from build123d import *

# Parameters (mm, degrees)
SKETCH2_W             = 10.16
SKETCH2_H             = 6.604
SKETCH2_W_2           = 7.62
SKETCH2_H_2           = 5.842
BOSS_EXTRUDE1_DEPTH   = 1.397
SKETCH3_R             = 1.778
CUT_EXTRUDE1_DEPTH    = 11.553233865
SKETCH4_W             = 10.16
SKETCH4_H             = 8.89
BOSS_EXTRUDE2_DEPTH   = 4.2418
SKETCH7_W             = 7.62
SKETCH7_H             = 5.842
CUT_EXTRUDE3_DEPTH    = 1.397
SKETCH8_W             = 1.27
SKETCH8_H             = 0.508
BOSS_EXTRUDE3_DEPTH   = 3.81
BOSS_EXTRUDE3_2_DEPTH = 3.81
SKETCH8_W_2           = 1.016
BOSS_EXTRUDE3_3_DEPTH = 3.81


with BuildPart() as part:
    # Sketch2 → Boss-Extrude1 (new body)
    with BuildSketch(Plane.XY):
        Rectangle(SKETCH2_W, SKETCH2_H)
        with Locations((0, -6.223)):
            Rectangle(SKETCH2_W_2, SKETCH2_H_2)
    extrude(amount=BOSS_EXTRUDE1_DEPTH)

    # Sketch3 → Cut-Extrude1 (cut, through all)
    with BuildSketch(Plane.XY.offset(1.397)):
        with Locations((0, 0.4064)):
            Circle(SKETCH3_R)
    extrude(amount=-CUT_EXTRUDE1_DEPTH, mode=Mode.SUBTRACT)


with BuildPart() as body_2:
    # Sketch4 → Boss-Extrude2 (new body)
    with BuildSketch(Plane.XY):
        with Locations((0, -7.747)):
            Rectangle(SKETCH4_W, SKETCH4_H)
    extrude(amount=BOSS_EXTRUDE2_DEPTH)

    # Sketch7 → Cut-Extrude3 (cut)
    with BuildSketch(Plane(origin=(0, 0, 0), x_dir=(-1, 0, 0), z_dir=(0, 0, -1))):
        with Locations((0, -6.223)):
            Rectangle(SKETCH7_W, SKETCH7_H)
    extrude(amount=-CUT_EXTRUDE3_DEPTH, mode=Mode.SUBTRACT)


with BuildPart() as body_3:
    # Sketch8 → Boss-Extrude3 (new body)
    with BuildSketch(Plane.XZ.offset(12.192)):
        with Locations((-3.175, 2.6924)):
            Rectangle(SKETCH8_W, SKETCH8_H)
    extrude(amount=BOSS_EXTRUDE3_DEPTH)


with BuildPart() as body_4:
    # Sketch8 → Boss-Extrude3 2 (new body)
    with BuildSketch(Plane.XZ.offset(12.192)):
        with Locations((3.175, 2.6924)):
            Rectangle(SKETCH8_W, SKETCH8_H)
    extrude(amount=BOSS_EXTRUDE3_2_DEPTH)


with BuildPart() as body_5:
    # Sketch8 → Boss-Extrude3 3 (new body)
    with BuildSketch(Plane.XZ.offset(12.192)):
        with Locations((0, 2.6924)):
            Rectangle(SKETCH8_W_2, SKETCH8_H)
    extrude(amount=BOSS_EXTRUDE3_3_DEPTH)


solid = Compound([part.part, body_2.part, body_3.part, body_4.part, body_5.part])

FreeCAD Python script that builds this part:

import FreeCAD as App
import Part
import Sketcher
from FreeCAD import Vector
Q = App.Units.Quantity

doc = App.newDocument("Part")
params = doc.addObject("Spreadsheet::Sheet", "Params")
for row, (alias, value) in enumerate([
    ("sketch1_width", "0.3 in"),
    ("sketch1_width2", "0.4 in"),
    ("sketch1_height", "0.26 in"),
    ("sketch1_height2", "0.23 in"),
    ("pad1_length", "0.055 in"),
    ("sketch2_diameter", "0.14 in"),
    ("sketch3_width", "0.4 in"),
    ("sketch3_height", "0.35 in"),
    ("pad2_length", "0.167 in"),
    ("sketch4_width", "0.3 in"),
    ("sketch4_height", "0.23 in"),
    ("pocket2_length", "0.055 in"),
    ("sketch5_width", "0.05 in"),
    ("sketch5_height", "0.02 in"),
    ("pad3_length", "0.15 in"),
    ("sketch6_width", "0.05 in"),
    ("sketch6_height", "0.02 in"),
    ("pad4_length", "0.15 in"),
    ("sketch7_width", "0.04 in"),
    ("sketch7_height", "0.02 in"),
    ("pad5_length", "0.15 in"),
], start=1):
    params.set(f"A{row}", alias)
    params.set(f"B{row}", "=" + value)
    params.setAlias(f"B{row}", alias)

body = doc.addObject("PartDesign::Body", "Body")

# Sketch on XY plane
sketch1 = doc.addObject("Sketcher::SketchObject", "Sketch")
body.addObject(sketch1)
sketch1.AttachmentSupport = (doc.XY_Plane, [""])
sketch1.MapMode = "FlatFace"
sketch1.addGeometry(Part.LineSegment(Vector(-5.1, 3.3, 0), Vector(-5.1, -3.3, 0)), False)
sketch1.addGeometry(Part.LineSegment(Vector(-5.1, -3.3, 0), Vector(-3.8, -3.3, 0)), False)
sketch1.addGeometry(Part.LineSegment(Vector(-3.8, -3.3, 0), Vector(-3.8, -9.1, 0)), False)
sketch1.addGeometry(Part.LineSegment(Vector(-3.8, -9.1, 0), Vector(3.8, -9.1, 0)), False)
sketch1.addGeometry(Part.LineSegment(Vector(3.8, -9.1, 0), Vector(3.8, -3.3, 0)), False)
sketch1.addGeometry(Part.LineSegment(Vector(3.8, -3.3, 0), Vector(5.1, -3.3, 0)), False)
sketch1.addGeometry(Part.LineSegment(Vector(5.1, -3.3, 0), Vector(5.1, 3.3, 0)), False)
sketch1.addGeometry(Part.LineSegment(Vector(5.1, 3.3, 0), Vector(-5.1, 3.3, 0)), False)
sketch1.addConstraint(Sketcher.Constraint("Coincident", 0, 2, 1, 1))
sketch1.addConstraint(Sketcher.Constraint("Coincident", 1, 2, 2, 1))
sketch1.addConstraint(Sketcher.Constraint("Coincident", 2, 2, 3, 1))
sketch1.addConstraint(Sketcher.Constraint("Coincident", 3, 2, 4, 1))
sketch1.addConstraint(Sketcher.Constraint("Coincident", 4, 2, 5, 1))
sketch1.addConstraint(Sketcher.Constraint("Coincident", 5, 2, 6, 1))
sketch1.addConstraint(Sketcher.Constraint("Coincident", 6, 2, 7, 1))
sketch1.addConstraint(Sketcher.Constraint("Coincident", 7, 2, 0, 1))
sketch1.addConstraint(Sketcher.Constraint("Vertical", 0))
sketch1.addConstraint(Sketcher.Constraint("Horizontal", 1))
sketch1.addConstraint(Sketcher.Constraint("Vertical", 2))
sketch1.addConstraint(Sketcher.Constraint("Horizontal", 3))
sketch1.addConstraint(Sketcher.Constraint("Vertical", 4))
sketch1.addConstraint(Sketcher.Constraint("Horizontal", 5))
sketch1.addConstraint(Sketcher.Constraint("Vertical", 6))
sketch1.addConstraint(Sketcher.Constraint("Horizontal", 7))
sketch1.addConstraint(Sketcher.Constraint("Symmetric", 0, 2, 6, 2, -1, 1))
sketch1.addConstraint(Sketcher.Constraint("Symmetric", 1, 2, 4, 2, -2))
sketch1.addConstraint(Sketcher.Constraint("DistanceX", 3, 1, 3, 2, Q("0.3 in")))
sketch1.addConstraint(Sketcher.Constraint("DistanceX", 7, 2, 7, 1, Q("0.4 in")))
sketch1.addConstraint(Sketcher.Constraint("DistanceY", 0, 2, 0, 1, Q("0.26 in")))
sketch1.addConstraint(Sketcher.Constraint("DistanceY", 2, 2, 2, 1, Q("0.23 in")))
sketch1.setExpression("Constraints[18]", "Params.sketch1_width")
sketch1.setExpression("Constraints[19]", "Params.sketch1_width2")
sketch1.setExpression("Constraints[20]", "Params.sketch1_height")
sketch1.setExpression("Constraints[21]", "Params.sketch1_height2")
pad1 = doc.addObject("PartDesign::Pad", "Pad")
body.addObject(pad1)
pad1.Profile = sketch1
pad1.setExpression("Length", "Params.pad1_length")

# Sketch on XY plane
sketch2 = doc.addObject("Sketcher::SketchObject", "Sketch001")
body.addObject(sketch2)
sketch2.AttachmentSupport = (doc.XY_Plane, [""])
sketch2.MapMode = "FlatFace"
sketch2.AttachmentOffset = App.Placement(Vector(0, 0, 0.055 * 25.4), App.Rotation())
sketch2.addGeometry(Part.Circle(Vector(0, 0.4, 0), Vector(0, 0, 1), 1.8), False)
sketch2.addConstraint(Sketcher.Constraint("PointOnObject", 0, 3, -2))
sketch2.addConstraint(Sketcher.Constraint("Diameter", 0, Q("0.14 in")))
sketch2.addConstraint(Sketcher.Constraint("DistanceY", -1, 1, 0, 3, Q("0.016 in")))
sketch2.setExpression("Constraints[1]", "Params.sketch2_diameter")
pocket1 = doc.addObject("PartDesign::Pocket", "Pocket")
body.addObject(pocket1)
pocket1.Profile = sketch2
pocket1.Type = "ThroughAll"
body2 = doc.addObject("PartDesign::Body", "Body001")

# Sketch on XY plane
sketch3 = doc.addObject("Sketcher::SketchObject", "Sketch002")
body2.addObject(sketch3)
sketch3.AttachmentSupport = (doc.getObject("XY_Plane001"), [""])
sketch3.MapMode = "FlatFace"
sketch3.addGeometry(Part.LineSegment(Vector(-5, -3, 0), Vector(-5, -12, 0)), False)
sketch3.addGeometry(Part.LineSegment(Vector(-5, -12, 0), Vector(5, -12, 0)), False)
sketch3.addGeometry(Part.LineSegment(Vector(5, -12, 0), Vector(5, -3, 0)), False)
sketch3.addGeometry(Part.LineSegment(Vector(5, -3, 0), Vector(-5, -3, 0)), False)
sketch3.addConstraint(Sketcher.Constraint("Coincident", 0, 2, 1, 1))
sketch3.addConstraint(Sketcher.Constraint("Coincident", 1, 2, 2, 1))
sketch3.addConstraint(Sketcher.Constraint("Coincident", 2, 2, 3, 1))
sketch3.addConstraint(Sketcher.Constraint("Coincident", 3, 2, 0, 1))
sketch3.addConstraint(Sketcher.Constraint("Vertical", 0))
sketch3.addConstraint(Sketcher.Constraint("Horizontal", 1))
sketch3.addConstraint(Sketcher.Constraint("Vertical", 2))
sketch3.addConstraint(Sketcher.Constraint("Horizontal", 3))
sketch3.addConstraint(Sketcher.Constraint("DistanceX", 1, 1, 1, 2, Q("0.4 in")))
sketch3.addConstraint(Sketcher.Constraint("DistanceY", 0, 2, 0, 1, Q("0.35 in")))
sketch3.addConstraint(Sketcher.Constraint("DistanceX", 0, 2, -1, 1, Q("0.2 in")))
sketch3.addConstraint(Sketcher.Constraint("DistanceY", 0, 2, -1, 1, Q("0.48 in")))
sketch3.setExpression("Constraints[8]", "Params.sketch3_width")
sketch3.setExpression("Constraints[9]", "Params.sketch3_height")
pad2 = doc.addObject("PartDesign::Pad", "Pad001")
body2.addObject(pad2)
pad2.Profile = sketch3
pad2.setExpression("Length", "Params.pad2_length")

# Sketch on XY plane
sketch4 = doc.addObject("Sketcher::SketchObject", "Sketch003")
body2.addObject(sketch4)
sketch4.AttachmentSupport = (doc.getObject("XY_Plane001"), [""])
sketch4.MapMode = "FlatFace"
sketch4.addGeometry(Part.LineSegment(Vector(4, -3, 0), Vector(4, -9, 0)), False)
sketch4.addGeometry(Part.LineSegment(Vector(4, -9, 0), Vector(-4, -9, 0)), False)
sketch4.addGeometry(Part.LineSegment(Vector(-4, -9, 0), Vector(-4, -3, 0)), False)
sketch4.addGeometry(Part.LineSegment(Vector(-4, -3, 0), Vector(4, -3, 0)), False)
sketch4.addConstraint(Sketcher.Constraint("Coincident", 0, 2, 1, 1))
sketch4.addConstraint(Sketcher.Constraint("Coincident", 1, 2, 2, 1))
sketch4.addConstraint(Sketcher.Constraint("Coincident", 2, 2, 3, 1))
sketch4.addConstraint(Sketcher.Constraint("Coincident", 3, 2, 0, 1))
sketch4.addConstraint(Sketcher.Constraint("Vertical", 0))
sketch4.addConstraint(Sketcher.Constraint("Horizontal", 1))
sketch4.addConstraint(Sketcher.Constraint("Vertical", 2))
sketch4.addConstraint(Sketcher.Constraint("Horizontal", 3))
sketch4.addConstraint(Sketcher.Constraint("DistanceX", 1, 2, 1, 1, Q("0.3 in")))
sketch4.addConstraint(Sketcher.Constraint("DistanceY", 0, 2, 0, 1, Q("0.23 in")))
sketch4.addConstraint(Sketcher.Constraint("DistanceX", -1, 1, 0, 2, Q("0.15 in")))
sketch4.addConstraint(Sketcher.Constraint("DistanceY", 0, 2, -1, 1, Q("0.36 in")))
sketch4.setExpression("Constraints[8]", "Params.sketch4_width")
sketch4.setExpression("Constraints[9]", "Params.sketch4_height")
pocket2 = doc.addObject("PartDesign::Pocket", "Pocket001")
body2.addObject(pocket2)
pocket2.Profile = sketch4
pocket2.setExpression("Length", "Params.pocket2_length")
pocket2.Reversed = True
body3 = doc.addObject("PartDesign::Body", "Body002")

# Sketch on XZ plane
sketch5 = doc.addObject("Sketcher::SketchObject", "Sketch004")
body3.addObject(sketch5)
sketch5.AttachmentSupport = (doc.getObject("XZ_Plane002"), [""])
sketch5.MapMode = "FlatFace"
sketch5.AttachmentOffset = App.Placement(Vector(0, 0, 0.48 * 25.4), App.Rotation())
sketch5.addGeometry(Part.LineSegment(Vector(-3.8, 2.9, 0), Vector(-3.8, 2.4, 0)), False)
sketch5.addGeometry(Part.LineSegment(Vector(-3.8, 2.4, 0), Vector(-2.5, 2.4, 0)), False)
sketch5.addGeometry(Part.LineSegment(Vector(-2.5, 2.4, 0), Vector(-2.5, 2.9, 0)), False)
sketch5.addGeometry(Part.LineSegment(Vector(-2.5, 2.9, 0), Vector(-3.8, 2.9, 0)), False)
sketch5.addConstraint(Sketcher.Constraint("Coincident", 0, 2, 1, 1))
sketch5.addConstraint(Sketcher.Constraint("Coincident", 1, 2, 2, 1))
sketch5.addConstraint(Sketcher.Constraint("Coincident", 2, 2, 3, 1))
sketch5.addConstraint(Sketcher.Constraint("Coincident", 3, 2, 0, 1))
sketch5.addConstraint(Sketcher.Constraint("Vertical", 0))
sketch5.addConstraint(Sketcher.Constraint("Horizontal", 1))
sketch5.addConstraint(Sketcher.Constraint("Vertical", 2))
sketch5.addConstraint(Sketcher.Constraint("Horizontal", 3))
sketch5.addConstraint(Sketcher.Constraint("DistanceX", 1, 1, 1, 2, Q("0.05 in")))
sketch5.addConstraint(Sketcher.Constraint("DistanceY", 0, 2, 0, 1, Q("0.02 in")))
sketch5.addConstraint(Sketcher.Constraint("DistanceX", 1, 2, -1, 1, Q("0.1 in")))
sketch5.addConstraint(Sketcher.Constraint("DistanceY", -1, 1, 0, 2, Q("0.096 in")))
sketch5.setExpression("Constraints[8]", "Params.sketch5_width")
sketch5.setExpression("Constraints[9]", "Params.sketch5_height")
pad3 = doc.addObject("PartDesign::Pad", "Pad002")
body3.addObject(pad3)
pad3.Profile = sketch5
pad3.setExpression("Length", "Params.pad3_length")
body4 = doc.addObject("PartDesign::Body", "Body003")

# Sketch on XZ plane
sketch6 = doc.addObject("Sketcher::SketchObject", "Sketch005")
body4.addObject(sketch6)
sketch6.AttachmentSupport = (doc.getObject("XZ_Plane003"), [""])
sketch6.MapMode = "FlatFace"
sketch6.AttachmentOffset = App.Placement(Vector(0, 0, 0.48 * 25.4), App.Rotation())
sketch6.addGeometry(Part.LineSegment(Vector(2.5, 2.9, 0), Vector(2.5, 2.4, 0)), False)
sketch6.addGeometry(Part.LineSegment(Vector(2.5, 2.4, 0), Vector(3.8, 2.4, 0)), False)
sketch6.addGeometry(Part.LineSegment(Vector(3.8, 2.4, 0), Vector(3.8, 2.9, 0)), False)
sketch6.addGeometry(Part.LineSegment(Vector(3.8, 2.9, 0), Vector(2.5, 2.9, 0)), False)
sketch6.addConstraint(Sketcher.Constraint("Coincident", 0, 2, 1, 1))
sketch6.addConstraint(Sketcher.Constraint("Coincident", 1, 2, 2, 1))
sketch6.addConstraint(Sketcher.Constraint("Coincident", 2, 2, 3, 1))
sketch6.addConstraint(Sketcher.Constraint("Coincident", 3, 2, 0, 1))
sketch6.addConstraint(Sketcher.Constraint("Vertical", 0))
sketch6.addConstraint(Sketcher.Constraint("Horizontal", 1))
sketch6.addConstraint(Sketcher.Constraint("Vertical", 2))
sketch6.addConstraint(Sketcher.Constraint("Horizontal", 3))
sketch6.addConstraint(Sketcher.Constraint("DistanceX", 1, 1, 1, 2, Q("0.05 in")))
sketch6.addConstraint(Sketcher.Constraint("DistanceY", 0, 2, 0, 1, Q("0.02 in")))
sketch6.addConstraint(Sketcher.Constraint("DistanceX", -1, 1, 0, 2, Q("0.1 in")))
sketch6.addConstraint(Sketcher.Constraint("DistanceY", -1, 1, 0, 2, Q("0.096 in")))
sketch6.setExpression("Constraints[8]", "Params.sketch6_width")
sketch6.setExpression("Constraints[9]", "Params.sketch6_height")
pad4 = doc.addObject("PartDesign::Pad", "Pad003")
body4.addObject(pad4)
pad4.Profile = sketch6
pad4.setExpression("Length", "Params.pad4_length")
body5 = doc.addObject("PartDesign::Body", "Body004")

# Sketch on XZ plane
sketch7 = doc.addObject("Sketcher::SketchObject", "Sketch006")
body5.addObject(sketch7)
sketch7.AttachmentSupport = (doc.getObject("XZ_Plane004"), [""])
sketch7.MapMode = "FlatFace"
sketch7.AttachmentOffset = App.Placement(Vector(0, 0, 0.48 * 25.4), App.Rotation())
sketch7.addGeometry(Part.LineSegment(Vector(-0.5, 2.9, 0), Vector(-0.5, 2.4, 0)), False)
sketch7.addGeometry(Part.LineSegment(Vector(-0.5, 2.4, 0), Vector(0.5, 2.4, 0)), False)
sketch7.addGeometry(Part.LineSegment(Vector(0.5, 2.4, 0), Vector(0.5, 2.9, 0)), False)
sketch7.addGeometry(Part.LineSegment(Vector(0.5, 2.9, 0), Vector(-0.5, 2.9, 0)), False)
sketch7.addConstraint(Sketcher.Constraint("Coincident", 0, 2, 1, 1))
sketch7.addConstraint(Sketcher.Constraint("Coincident", 1, 2, 2, 1))
sketch7.addConstraint(Sketcher.Constraint("Coincident", 2, 2, 3, 1))
sketch7.addConstraint(Sketcher.Constraint("Coincident", 3, 2, 0, 1))
sketch7.addConstraint(Sketcher.Constraint("Vertical", 0))
sketch7.addConstraint(Sketcher.Constraint("Horizontal", 1))
sketch7.addConstraint(Sketcher.Constraint("Vertical", 2))
sketch7.addConstraint(Sketcher.Constraint("Horizontal", 3))
sketch7.addConstraint(Sketcher.Constraint("DistanceX", 1, 1, 1, 2, Q("0.04 in")))
sketch7.addConstraint(Sketcher.Constraint("DistanceY", 0, 2, 0, 1, Q("0.02 in")))
sketch7.addConstraint(Sketcher.Constraint("DistanceX", 0, 2, -1, 1, Q("0.02 in")))
sketch7.addConstraint(Sketcher.Constraint("DistanceY", -1, 1, 0, 2, Q("0.096 in")))
sketch7.setExpression("Constraints[8]", "Params.sketch7_width")
sketch7.setExpression("Constraints[9]", "Params.sketch7_height")
pad5 = doc.addObject("PartDesign::Pad", "Pad004")
body5.addObject(pad5)
pad5.Profile = sketch7
pad5.setExpression("Length", "Params.pad5_length")

doc.recompute()
